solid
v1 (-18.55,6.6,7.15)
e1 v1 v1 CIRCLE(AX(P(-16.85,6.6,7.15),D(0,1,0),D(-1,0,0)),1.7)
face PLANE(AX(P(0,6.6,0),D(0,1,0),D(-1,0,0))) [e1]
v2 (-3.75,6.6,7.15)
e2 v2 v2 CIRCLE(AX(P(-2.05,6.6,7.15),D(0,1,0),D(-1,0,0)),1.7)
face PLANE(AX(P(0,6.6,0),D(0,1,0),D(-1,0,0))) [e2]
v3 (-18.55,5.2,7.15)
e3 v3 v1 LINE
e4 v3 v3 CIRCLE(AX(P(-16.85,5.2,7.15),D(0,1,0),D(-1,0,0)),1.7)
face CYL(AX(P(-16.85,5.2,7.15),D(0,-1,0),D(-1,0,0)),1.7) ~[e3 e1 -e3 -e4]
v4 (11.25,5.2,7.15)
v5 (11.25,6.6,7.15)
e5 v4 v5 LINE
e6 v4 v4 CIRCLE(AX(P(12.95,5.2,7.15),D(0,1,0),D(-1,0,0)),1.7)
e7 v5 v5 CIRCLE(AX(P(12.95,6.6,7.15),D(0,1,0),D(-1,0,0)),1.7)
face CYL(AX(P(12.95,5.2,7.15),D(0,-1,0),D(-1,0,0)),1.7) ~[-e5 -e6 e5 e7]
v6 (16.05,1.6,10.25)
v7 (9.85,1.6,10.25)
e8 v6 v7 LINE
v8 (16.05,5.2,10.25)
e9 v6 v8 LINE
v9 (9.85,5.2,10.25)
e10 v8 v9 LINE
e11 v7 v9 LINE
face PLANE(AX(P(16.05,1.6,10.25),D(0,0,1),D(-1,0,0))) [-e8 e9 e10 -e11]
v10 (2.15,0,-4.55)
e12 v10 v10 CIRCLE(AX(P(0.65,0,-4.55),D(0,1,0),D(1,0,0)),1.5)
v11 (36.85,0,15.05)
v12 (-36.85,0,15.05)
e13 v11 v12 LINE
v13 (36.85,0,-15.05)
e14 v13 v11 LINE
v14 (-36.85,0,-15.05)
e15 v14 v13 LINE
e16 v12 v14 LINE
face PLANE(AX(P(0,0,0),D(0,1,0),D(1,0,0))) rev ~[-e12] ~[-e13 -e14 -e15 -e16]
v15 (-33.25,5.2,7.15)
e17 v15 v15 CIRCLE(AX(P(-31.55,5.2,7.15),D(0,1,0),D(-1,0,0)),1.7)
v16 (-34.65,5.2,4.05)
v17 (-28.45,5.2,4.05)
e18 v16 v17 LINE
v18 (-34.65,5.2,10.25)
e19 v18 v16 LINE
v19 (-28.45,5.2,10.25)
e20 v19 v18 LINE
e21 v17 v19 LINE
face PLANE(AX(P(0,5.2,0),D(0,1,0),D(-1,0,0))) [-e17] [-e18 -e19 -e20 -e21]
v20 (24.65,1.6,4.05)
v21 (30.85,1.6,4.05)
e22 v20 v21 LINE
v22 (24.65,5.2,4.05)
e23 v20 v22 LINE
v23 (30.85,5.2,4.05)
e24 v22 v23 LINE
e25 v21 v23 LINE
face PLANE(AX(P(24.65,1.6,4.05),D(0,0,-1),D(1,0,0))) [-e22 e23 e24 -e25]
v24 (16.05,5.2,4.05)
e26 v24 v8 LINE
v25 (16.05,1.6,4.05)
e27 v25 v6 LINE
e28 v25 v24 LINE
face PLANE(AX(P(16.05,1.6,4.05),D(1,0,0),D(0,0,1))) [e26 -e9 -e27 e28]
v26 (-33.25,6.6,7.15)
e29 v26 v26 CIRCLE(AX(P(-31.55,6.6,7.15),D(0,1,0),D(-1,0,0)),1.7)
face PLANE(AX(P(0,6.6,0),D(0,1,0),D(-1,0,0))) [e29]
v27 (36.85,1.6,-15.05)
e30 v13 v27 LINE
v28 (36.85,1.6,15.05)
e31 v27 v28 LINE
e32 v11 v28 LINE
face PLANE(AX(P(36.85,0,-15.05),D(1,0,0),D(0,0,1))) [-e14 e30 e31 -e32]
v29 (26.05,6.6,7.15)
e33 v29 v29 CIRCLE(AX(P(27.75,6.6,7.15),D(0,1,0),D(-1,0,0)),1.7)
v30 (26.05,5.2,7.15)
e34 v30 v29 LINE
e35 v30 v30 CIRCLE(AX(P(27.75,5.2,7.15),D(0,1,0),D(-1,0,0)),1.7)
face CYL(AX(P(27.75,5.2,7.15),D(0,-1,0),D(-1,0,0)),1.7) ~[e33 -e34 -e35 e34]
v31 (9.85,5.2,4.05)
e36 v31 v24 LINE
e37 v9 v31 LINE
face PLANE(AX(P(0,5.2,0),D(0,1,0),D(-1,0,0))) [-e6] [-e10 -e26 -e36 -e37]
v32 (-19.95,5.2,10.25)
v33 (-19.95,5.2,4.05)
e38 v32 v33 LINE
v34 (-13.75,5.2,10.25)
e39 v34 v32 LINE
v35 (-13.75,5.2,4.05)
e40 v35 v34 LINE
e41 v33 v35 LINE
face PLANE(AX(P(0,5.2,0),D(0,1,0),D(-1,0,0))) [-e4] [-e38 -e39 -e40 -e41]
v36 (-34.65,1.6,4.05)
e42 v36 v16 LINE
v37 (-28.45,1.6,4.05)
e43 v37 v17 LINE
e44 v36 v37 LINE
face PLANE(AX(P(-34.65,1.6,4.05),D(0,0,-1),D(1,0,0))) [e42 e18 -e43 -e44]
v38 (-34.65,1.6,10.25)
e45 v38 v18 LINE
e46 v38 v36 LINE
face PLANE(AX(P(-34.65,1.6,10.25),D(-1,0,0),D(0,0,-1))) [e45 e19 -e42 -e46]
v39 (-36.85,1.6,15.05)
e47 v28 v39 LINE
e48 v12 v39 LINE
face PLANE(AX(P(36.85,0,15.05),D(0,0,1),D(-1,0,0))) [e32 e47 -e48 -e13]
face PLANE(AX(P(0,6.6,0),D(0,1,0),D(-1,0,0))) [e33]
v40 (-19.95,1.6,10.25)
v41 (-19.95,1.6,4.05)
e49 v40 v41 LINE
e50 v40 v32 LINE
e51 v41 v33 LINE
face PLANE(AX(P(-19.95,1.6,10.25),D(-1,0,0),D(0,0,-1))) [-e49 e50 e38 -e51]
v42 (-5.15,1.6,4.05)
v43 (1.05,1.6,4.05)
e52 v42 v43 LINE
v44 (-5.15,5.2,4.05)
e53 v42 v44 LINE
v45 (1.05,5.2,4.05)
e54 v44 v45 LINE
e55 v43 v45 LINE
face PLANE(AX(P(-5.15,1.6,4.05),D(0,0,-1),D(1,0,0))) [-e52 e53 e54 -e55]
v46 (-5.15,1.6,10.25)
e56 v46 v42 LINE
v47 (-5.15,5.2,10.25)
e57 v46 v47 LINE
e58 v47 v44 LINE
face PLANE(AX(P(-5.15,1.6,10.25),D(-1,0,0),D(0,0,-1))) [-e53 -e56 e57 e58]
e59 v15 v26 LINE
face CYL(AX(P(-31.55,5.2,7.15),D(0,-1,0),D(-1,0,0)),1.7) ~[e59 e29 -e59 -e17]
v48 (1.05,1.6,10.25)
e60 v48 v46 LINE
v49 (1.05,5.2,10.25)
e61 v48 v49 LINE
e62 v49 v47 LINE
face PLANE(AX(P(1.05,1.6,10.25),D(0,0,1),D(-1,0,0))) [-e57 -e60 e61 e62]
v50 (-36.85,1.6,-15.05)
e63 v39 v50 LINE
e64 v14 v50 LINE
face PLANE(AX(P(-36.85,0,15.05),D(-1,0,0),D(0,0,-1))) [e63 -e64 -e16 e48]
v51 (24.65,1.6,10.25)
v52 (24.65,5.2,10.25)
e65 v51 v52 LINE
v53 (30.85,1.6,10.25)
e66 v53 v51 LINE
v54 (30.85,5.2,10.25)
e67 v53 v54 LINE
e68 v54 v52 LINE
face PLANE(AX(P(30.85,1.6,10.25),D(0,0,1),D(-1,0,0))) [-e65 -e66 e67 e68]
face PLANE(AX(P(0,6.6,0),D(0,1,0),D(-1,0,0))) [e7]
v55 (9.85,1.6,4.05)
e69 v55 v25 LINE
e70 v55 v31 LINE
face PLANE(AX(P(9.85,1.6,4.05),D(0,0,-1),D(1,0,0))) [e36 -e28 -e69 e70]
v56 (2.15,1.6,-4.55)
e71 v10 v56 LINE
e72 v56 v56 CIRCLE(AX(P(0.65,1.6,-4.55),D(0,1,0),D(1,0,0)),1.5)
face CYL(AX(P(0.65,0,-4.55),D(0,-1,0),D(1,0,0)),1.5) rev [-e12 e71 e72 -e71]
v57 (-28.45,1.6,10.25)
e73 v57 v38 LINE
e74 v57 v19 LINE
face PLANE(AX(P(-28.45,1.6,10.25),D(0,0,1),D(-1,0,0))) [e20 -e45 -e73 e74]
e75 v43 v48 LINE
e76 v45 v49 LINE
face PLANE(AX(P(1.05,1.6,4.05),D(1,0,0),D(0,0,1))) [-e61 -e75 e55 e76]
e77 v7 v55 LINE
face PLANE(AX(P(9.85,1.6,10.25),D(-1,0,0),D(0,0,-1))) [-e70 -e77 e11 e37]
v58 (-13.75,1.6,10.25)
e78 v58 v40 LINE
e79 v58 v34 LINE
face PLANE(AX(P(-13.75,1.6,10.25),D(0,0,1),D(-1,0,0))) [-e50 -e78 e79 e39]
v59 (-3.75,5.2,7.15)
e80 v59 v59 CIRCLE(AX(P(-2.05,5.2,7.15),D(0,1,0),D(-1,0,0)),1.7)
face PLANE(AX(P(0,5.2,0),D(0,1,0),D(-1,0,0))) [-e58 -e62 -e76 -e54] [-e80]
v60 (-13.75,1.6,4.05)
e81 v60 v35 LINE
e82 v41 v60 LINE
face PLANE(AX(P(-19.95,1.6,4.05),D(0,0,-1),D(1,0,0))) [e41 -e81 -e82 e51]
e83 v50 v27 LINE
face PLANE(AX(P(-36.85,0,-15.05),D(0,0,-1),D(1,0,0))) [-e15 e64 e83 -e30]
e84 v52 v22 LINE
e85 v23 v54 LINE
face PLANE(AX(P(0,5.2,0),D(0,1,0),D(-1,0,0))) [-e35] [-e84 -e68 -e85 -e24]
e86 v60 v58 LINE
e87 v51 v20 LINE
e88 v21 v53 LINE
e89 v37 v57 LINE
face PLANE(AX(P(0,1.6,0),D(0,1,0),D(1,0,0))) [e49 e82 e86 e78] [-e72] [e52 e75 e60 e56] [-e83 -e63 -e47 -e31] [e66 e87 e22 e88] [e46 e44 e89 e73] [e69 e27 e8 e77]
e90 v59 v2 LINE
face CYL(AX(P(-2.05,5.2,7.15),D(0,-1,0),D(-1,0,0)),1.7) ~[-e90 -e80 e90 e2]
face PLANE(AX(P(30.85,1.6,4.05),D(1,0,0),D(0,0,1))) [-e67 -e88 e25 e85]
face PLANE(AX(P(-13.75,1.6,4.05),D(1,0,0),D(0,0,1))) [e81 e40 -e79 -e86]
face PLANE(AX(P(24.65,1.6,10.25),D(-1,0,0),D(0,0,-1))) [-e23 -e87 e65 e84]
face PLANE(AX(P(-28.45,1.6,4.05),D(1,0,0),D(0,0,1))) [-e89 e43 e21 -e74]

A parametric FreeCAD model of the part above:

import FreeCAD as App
import Part
import Sketcher
from FreeCAD import Vector


def add_polygon(sketch, points):
    """Adds a closed chain of lines whose ends are joined by coincident constraints."""
    first, n = sketch.GeometryCount, len(points)
    for a, b in zip(points, points[1:] + points[:1]):
        sketch.addGeometry(Part.LineSegment(App.Vector(*a, 0), App.Vector(*b, 0)), False)
    for i in range(n):
        sketch.addConstraint(Sketcher.Constraint("Coincident", first + i, 2, first + (i + 1) % n, 1))

doc = App.newDocument("Part")
body = doc.addObject("PartDesign::Body", "Body")

sketch1 = doc.addObject("Sketcher::SketchObject", "Sketch")
body.addObject(sketch1)
sketch1.AttachmentSupport = (doc.XZ_Plane, [""])
sketch1.MapMode = "FlatFace"
add_polygon(sketch1, [(-36.85, 15.05), (36.85, 15.05), (36.85, -15.05), (-36.85, -15.05)])
sketch1.addGeometry(Part.Circle(Vector(0.65, -4.55, 0), Vector(0, 0, 1), 1.5), False)
sketch1.addConstraint([
    Sketcher.Constraint("Horizontal", 0),
    Sketcher.Constraint("Vertical", 1),
    Sketcher.Constraint("Horizontal", 2),
    Sketcher.Constraint("Vertical", 3),
    Sketcher.Constraint("Symmetric", 0, 2, 2, 2, -1, 1),
    Sketcher.Constraint("Diameter", 4, 3.0),
    Sketcher.Constraint("DistanceX", 0, 1, 0, 2, 73.7),
    Sketcher.Constraint("DistanceY", 1, 2, 1, 1, 30.1),
    Sketcher.Constraint("DistanceY", 1, 2, 4, 3, 10.5),
    Sketcher.Constraint("DistanceX", 2, 2, 4, 3, 37.5),
])
pad1 = doc.addObject("PartDesign::Pad", "Pad")
body.addObject(pad1)
pad1.Profile = sketch1
pad1.Length = 1.6
pad1.Reversed = True

sketch2 = doc.addObject("Sketcher::SketchObject", "Sketch001")
body.addObject(sketch2)
sketch2.AttachmentSupport = (doc.XZ_Plane, [""])
sketch2.MapMode = "FlatFace"
sketch2.AttachmentOffset = App.Placement(Vector(0, 0, -1.6), App.Rotation())
add_polygon(sketch2, [(-28.45, 4.05), (-34.65, 4.05), (-34.65, 10.25), (-28.45, 10.25)])
add_polygon(sketch2, [(-13.75, 4.05), (-19.95, 4.05), (-19.95, 10.25), (-13.75, 10.25)])
add_polygon(sketch2, [(1.05, 4.05), (-5.15, 4.05), (-5.15, 10.25), (1.05, 10.25)])
add_polygon(sketch2, [(16.05, 4.05), (9.85, 4.05), (9.85, 10.25), (16.05, 10.25)])
add_polygon(sketch2, [(30.85, 4.05), (24.65, 4.05), (24.65, 10.25), (30.85, 10.25)])
sketch2.addConstraint([
    Sketcher.Constraint("Horizontal", 0),
    Sketcher.Constraint("Vertical", 1),
    Sketcher.Constraint("Horizontal", 2),
    Sketcher.Constraint("Vertical", 3),
    Sketcher.Constraint("Horizontal", 4),
    Sketcher.Constraint("Vertical", 5),
    Sketcher.Constraint("Horizontal", 6),
    Sketcher.Constraint("Vertical", 7),
    Sketcher.Constraint("Horizontal", 8),
    Sketcher.Constraint("Vertical", 9),
    Sketcher.Constraint("Horizontal", 10),
    Sketcher.Constraint("Vertical", 11),
    Sketcher.Constraint("Horizontal", 12),
    Sketcher.Constraint("Vertical", 13),
    Sketcher.Constraint("Horizontal", 14),
    Sketcher.Constraint("Vertical", 15),
    Sketcher.Constraint("Horizontal", 16),
    Sketcher.Constraint("Vertical", 17),
    Sketcher.Constraint("Horizontal", 18),
    Sketcher.Constraint("Vertical", 19),
    Sketcher.Constraint("Horizontal", 3, 2, 4, 2),
    Sketcher.Constraint("Horizontal", 2, 2, 5, 2),
    Sketcher.Constraint("Horizontal", 7, 2, 8, 2),
    Sketcher.Constraint("Horizontal", 6, 2, 9, 2),
    Sketcher.Constraint("Horizontal", 11, 2, 12, 2),
    Sketcher.Constraint("Horizontal", 10, 2, 13, 2),
    Sketcher.Constraint("Horizontal", 15, 2, 16, 2),
    Sketcher.Constraint("Horizontal", 14, 2, 17, 2),
    Sketcher.Constraint("Equal", 2, 4),
    Sketcher.Constraint("Equal", 6, 8),
    Sketcher.Constraint("Equal", 10, 12),
    Sketcher.Constraint("Equal", 14, 16),
    Sketcher.Constraint("Equal", 18, 1),
    Sketcher.Constraint("DistanceX", 0, 2, 0, 1, 6.2),
    Sketcher.Constraint("DistanceX", 5, 2, 10, 2, 21.0),
    Sketcher.Constraint("DistanceX", 13, 2, 18, 2, 21.0),
    Sketcher.Constraint("DistanceX", 3, 2, 4, 2, 8.5),
    Sketcher.Constraint("DistanceX", 11, 2, 12, 2, 8.8),
    Sketcher.Constraint("DistanceX", 0, 2, -1, 1, 34.65),
    Sketcher.Constraint("DistanceY", -1, 1, 0, 2, 4.05),
])
pad2 = doc.addObject("PartDesign::Pad", "Pad001")
body.addObject(pad2)
pad2.Profile = sketch2
pad2.Length = 3.6
pad2.Reversed = True

sketch3 = doc.addObject("Sketcher::SketchObject", "Sketch002")
body.addObject(sketch3)
sketch3.AttachmentSupport = (doc.XZ_Plane, [""])
sketch3.MapMode = "FlatFace"
sketch3.AttachmentOffset = App.Placement(Vector(0, 0, -5.2), App.Rotation())
sketch3.addGeometry([
    Part.Circle(Vector(-31.55, 7.15, 0), Vector(0, 0, 1), 1.7),
    Part.Circle(Vector(-16.85, 7.15, 0), Vector(0, 0, 1), 1.7),
    Part.Circle(Vector(-2.05, 7.15, 0), Vector(0, 0, 1), 1.7),
    Part.Circle(Vector(12.95, 7.15, 0), Vector(0, 0, 1), 1.7),
    Part.Circle(Vector(27.75, 7.15, 0), Vector(0, 0, 1), 1.7),
], False)
sketch3.addConstraint([
    Sketcher.Constraint("Equal", 0, 1),
    Sketcher.Constraint("Equal", 1, 2),
    Sketcher.Constraint("Equal", 2, 3),
    Sketcher.Constraint("Equal", 3, 4),
    Sketcher.Constraint("Horizontal", 0, 3, 1, 3),
    Sketcher.Constraint("Horizontal", 1, 3, 2, 3),
    Sketcher.Constraint("Horizontal", 2, 3, 3, 3),
    Sketcher.Constraint("Horizontal", 3, 3, 4, 3),
    Sketcher.Constraint("Diameter", 0, 3.4),
    Sketcher.Constraint("DistanceX", 2, 3, 3, 3, 15.0),
    Sketcher.Constraint("DistanceX", 0, 3, 1, 3, 14.7),
    Sketcher.Constraint("DistanceX", 1, 3, 2, 3, 14.8),
    Sketcher.Constraint("DistanceX", 3, 3, 4, 3, 14.8),
    Sketcher.Constraint("DistanceX", 0, 3, -1, 1, 31.55),
    Sketcher.Constraint("DistanceY", -1, 1, 0, 3, 7.15),
])
pad3 = doc.addObject("PartDesign::Pad", "Pad002")
body.addObject(pad3)
pad3.Profile = sketch3
pad3.Length = 1.4
pad3.Reversed = True

doc.recompute()
